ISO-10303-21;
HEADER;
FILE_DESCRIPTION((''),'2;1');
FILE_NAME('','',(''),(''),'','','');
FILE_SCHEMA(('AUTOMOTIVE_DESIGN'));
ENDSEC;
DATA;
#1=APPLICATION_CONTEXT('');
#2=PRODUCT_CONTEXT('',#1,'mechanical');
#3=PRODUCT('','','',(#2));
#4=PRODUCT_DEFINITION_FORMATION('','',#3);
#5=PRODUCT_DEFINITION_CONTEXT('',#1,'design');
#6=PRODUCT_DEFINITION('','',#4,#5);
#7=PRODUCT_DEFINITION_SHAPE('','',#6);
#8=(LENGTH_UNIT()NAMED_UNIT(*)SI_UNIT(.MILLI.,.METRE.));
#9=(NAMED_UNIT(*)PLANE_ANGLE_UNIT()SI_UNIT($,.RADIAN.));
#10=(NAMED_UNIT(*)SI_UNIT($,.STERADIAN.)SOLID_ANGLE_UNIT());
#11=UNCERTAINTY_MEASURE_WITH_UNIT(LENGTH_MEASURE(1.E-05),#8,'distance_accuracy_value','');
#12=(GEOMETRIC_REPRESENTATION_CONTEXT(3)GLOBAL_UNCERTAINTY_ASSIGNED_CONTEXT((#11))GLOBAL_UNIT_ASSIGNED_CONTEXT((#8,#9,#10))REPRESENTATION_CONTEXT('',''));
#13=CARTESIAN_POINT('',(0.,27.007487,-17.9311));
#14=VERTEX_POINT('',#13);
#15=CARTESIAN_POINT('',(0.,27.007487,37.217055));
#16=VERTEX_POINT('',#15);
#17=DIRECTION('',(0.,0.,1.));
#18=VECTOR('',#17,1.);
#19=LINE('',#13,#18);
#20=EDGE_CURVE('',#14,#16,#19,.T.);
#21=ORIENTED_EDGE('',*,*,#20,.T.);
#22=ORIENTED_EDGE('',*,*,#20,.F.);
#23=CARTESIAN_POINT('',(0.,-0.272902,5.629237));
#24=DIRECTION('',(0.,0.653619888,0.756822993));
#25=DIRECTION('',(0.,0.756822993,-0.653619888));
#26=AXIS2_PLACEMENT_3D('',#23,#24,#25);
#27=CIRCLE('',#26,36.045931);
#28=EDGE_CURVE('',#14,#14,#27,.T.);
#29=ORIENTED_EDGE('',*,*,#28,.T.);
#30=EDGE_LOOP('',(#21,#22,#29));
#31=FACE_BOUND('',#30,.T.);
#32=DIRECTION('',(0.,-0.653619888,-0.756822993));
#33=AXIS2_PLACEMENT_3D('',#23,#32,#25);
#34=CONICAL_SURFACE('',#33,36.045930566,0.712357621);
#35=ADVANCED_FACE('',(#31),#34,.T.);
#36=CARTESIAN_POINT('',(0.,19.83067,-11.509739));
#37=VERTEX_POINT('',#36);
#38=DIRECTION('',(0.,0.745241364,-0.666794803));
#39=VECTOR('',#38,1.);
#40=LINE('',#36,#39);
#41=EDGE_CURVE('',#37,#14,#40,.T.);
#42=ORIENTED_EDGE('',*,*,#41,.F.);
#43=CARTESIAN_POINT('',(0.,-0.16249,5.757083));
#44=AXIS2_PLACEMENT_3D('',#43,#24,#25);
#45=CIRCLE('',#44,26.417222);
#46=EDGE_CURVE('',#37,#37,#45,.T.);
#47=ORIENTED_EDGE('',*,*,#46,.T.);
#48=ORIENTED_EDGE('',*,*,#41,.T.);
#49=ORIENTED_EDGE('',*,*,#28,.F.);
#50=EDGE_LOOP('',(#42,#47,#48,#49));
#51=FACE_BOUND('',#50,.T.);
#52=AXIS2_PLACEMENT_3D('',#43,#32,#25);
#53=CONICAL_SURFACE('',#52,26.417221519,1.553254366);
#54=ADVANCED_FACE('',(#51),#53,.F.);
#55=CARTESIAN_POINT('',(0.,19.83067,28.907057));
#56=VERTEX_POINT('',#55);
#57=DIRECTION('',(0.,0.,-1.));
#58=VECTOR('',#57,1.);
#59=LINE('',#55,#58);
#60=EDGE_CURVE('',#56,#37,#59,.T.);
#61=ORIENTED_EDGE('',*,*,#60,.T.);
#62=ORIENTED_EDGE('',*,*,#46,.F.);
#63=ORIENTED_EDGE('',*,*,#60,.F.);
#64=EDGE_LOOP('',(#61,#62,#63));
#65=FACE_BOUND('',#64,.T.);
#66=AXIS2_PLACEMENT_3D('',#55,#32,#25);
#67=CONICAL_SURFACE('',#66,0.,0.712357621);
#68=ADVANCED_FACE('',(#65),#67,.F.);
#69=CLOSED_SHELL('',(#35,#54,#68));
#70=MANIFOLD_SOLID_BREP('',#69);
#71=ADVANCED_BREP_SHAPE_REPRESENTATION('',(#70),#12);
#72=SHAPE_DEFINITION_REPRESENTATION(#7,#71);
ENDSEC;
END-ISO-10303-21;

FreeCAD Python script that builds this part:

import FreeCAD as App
import Part
import Sketcher
from FreeCAD import Vector
Q = App.Units.Quantity

doc = App.newDocument("Part")
body = doc.addObject("PartDesign::Body", "Body")

sketch1 = body.newObject("Sketcher::SketchObject", "Sketch")
sketch1.AttachmentSupport = (doc.getObject("YZ_Plane"), [""])
sketch1.MapMode = "FlatFace"
sketch1.addGeometry([
    Part.LineSegment(Vector(27, -18, 0), Vector(27, 37, 0)),
    Part.LineSegment(Vector(27, 37, 0), Vector(20, 29, 0)),
    Part.LineSegment(Vector(20, 29, 0), Vector(20, -12, 0)),
    Part.LineSegment(Vector(20, -12, 0), Vector(27, -18, 0)),
], False)
sketch1.addGeometry(Part.LineSegment(Vector(0, 6, 0), Vector(27, 37, 0)), True)
sketch1.addConstraint([
    Sketcher.Constraint("Coincident", 0, 2, 1, 1),
    Sketcher.Constraint("Coincident", 1, 2, 2, 1),
    Sketcher.Constraint("Coincident", 2, 2, 3, 1),
    Sketcher.Constraint("Coincident", 3, 2, 0, 1),
    Sketcher.Constraint("Vertical", 0),
    Sketcher.Constraint("Vertical", 2),
    Sketcher.Constraint("Coincident", 4, 2, 0, 2),
    Sketcher.Constraint("Parallel", 1, 4),
    Sketcher.Constraint("DistanceY", 3, 2, -1, 1, Q("17.9311 mm")),
    Sketcher.Constraint("Distance", 3, Q("9.630191 mm")),
    Sketcher.Constraint("Distance", 4, Q("41.737391 mm")),
    Sketcher.Constraint("DistanceY", 0, 1, 0, 2, Q("55.148154 mm")),
    Sketcher.Constraint("DistanceY", 2, 2, 2, 1, Q("40.416796 mm")),
    Sketcher.Constraint("DistanceX", -1, 1, 1, 2, Q("19.83067 mm")),
    Sketcher.Constraint("DistanceY", 2, 2, -1, 1, Q("11.509739 mm")),
])
revolution = body.newObject("PartDesign::Revolution", "Revolution")
revolution.Profile = sketch1
revolution.ReferenceAxis = (sketch1, ["Axis0"])
revolution.Angle = 360

doc.recompute()
